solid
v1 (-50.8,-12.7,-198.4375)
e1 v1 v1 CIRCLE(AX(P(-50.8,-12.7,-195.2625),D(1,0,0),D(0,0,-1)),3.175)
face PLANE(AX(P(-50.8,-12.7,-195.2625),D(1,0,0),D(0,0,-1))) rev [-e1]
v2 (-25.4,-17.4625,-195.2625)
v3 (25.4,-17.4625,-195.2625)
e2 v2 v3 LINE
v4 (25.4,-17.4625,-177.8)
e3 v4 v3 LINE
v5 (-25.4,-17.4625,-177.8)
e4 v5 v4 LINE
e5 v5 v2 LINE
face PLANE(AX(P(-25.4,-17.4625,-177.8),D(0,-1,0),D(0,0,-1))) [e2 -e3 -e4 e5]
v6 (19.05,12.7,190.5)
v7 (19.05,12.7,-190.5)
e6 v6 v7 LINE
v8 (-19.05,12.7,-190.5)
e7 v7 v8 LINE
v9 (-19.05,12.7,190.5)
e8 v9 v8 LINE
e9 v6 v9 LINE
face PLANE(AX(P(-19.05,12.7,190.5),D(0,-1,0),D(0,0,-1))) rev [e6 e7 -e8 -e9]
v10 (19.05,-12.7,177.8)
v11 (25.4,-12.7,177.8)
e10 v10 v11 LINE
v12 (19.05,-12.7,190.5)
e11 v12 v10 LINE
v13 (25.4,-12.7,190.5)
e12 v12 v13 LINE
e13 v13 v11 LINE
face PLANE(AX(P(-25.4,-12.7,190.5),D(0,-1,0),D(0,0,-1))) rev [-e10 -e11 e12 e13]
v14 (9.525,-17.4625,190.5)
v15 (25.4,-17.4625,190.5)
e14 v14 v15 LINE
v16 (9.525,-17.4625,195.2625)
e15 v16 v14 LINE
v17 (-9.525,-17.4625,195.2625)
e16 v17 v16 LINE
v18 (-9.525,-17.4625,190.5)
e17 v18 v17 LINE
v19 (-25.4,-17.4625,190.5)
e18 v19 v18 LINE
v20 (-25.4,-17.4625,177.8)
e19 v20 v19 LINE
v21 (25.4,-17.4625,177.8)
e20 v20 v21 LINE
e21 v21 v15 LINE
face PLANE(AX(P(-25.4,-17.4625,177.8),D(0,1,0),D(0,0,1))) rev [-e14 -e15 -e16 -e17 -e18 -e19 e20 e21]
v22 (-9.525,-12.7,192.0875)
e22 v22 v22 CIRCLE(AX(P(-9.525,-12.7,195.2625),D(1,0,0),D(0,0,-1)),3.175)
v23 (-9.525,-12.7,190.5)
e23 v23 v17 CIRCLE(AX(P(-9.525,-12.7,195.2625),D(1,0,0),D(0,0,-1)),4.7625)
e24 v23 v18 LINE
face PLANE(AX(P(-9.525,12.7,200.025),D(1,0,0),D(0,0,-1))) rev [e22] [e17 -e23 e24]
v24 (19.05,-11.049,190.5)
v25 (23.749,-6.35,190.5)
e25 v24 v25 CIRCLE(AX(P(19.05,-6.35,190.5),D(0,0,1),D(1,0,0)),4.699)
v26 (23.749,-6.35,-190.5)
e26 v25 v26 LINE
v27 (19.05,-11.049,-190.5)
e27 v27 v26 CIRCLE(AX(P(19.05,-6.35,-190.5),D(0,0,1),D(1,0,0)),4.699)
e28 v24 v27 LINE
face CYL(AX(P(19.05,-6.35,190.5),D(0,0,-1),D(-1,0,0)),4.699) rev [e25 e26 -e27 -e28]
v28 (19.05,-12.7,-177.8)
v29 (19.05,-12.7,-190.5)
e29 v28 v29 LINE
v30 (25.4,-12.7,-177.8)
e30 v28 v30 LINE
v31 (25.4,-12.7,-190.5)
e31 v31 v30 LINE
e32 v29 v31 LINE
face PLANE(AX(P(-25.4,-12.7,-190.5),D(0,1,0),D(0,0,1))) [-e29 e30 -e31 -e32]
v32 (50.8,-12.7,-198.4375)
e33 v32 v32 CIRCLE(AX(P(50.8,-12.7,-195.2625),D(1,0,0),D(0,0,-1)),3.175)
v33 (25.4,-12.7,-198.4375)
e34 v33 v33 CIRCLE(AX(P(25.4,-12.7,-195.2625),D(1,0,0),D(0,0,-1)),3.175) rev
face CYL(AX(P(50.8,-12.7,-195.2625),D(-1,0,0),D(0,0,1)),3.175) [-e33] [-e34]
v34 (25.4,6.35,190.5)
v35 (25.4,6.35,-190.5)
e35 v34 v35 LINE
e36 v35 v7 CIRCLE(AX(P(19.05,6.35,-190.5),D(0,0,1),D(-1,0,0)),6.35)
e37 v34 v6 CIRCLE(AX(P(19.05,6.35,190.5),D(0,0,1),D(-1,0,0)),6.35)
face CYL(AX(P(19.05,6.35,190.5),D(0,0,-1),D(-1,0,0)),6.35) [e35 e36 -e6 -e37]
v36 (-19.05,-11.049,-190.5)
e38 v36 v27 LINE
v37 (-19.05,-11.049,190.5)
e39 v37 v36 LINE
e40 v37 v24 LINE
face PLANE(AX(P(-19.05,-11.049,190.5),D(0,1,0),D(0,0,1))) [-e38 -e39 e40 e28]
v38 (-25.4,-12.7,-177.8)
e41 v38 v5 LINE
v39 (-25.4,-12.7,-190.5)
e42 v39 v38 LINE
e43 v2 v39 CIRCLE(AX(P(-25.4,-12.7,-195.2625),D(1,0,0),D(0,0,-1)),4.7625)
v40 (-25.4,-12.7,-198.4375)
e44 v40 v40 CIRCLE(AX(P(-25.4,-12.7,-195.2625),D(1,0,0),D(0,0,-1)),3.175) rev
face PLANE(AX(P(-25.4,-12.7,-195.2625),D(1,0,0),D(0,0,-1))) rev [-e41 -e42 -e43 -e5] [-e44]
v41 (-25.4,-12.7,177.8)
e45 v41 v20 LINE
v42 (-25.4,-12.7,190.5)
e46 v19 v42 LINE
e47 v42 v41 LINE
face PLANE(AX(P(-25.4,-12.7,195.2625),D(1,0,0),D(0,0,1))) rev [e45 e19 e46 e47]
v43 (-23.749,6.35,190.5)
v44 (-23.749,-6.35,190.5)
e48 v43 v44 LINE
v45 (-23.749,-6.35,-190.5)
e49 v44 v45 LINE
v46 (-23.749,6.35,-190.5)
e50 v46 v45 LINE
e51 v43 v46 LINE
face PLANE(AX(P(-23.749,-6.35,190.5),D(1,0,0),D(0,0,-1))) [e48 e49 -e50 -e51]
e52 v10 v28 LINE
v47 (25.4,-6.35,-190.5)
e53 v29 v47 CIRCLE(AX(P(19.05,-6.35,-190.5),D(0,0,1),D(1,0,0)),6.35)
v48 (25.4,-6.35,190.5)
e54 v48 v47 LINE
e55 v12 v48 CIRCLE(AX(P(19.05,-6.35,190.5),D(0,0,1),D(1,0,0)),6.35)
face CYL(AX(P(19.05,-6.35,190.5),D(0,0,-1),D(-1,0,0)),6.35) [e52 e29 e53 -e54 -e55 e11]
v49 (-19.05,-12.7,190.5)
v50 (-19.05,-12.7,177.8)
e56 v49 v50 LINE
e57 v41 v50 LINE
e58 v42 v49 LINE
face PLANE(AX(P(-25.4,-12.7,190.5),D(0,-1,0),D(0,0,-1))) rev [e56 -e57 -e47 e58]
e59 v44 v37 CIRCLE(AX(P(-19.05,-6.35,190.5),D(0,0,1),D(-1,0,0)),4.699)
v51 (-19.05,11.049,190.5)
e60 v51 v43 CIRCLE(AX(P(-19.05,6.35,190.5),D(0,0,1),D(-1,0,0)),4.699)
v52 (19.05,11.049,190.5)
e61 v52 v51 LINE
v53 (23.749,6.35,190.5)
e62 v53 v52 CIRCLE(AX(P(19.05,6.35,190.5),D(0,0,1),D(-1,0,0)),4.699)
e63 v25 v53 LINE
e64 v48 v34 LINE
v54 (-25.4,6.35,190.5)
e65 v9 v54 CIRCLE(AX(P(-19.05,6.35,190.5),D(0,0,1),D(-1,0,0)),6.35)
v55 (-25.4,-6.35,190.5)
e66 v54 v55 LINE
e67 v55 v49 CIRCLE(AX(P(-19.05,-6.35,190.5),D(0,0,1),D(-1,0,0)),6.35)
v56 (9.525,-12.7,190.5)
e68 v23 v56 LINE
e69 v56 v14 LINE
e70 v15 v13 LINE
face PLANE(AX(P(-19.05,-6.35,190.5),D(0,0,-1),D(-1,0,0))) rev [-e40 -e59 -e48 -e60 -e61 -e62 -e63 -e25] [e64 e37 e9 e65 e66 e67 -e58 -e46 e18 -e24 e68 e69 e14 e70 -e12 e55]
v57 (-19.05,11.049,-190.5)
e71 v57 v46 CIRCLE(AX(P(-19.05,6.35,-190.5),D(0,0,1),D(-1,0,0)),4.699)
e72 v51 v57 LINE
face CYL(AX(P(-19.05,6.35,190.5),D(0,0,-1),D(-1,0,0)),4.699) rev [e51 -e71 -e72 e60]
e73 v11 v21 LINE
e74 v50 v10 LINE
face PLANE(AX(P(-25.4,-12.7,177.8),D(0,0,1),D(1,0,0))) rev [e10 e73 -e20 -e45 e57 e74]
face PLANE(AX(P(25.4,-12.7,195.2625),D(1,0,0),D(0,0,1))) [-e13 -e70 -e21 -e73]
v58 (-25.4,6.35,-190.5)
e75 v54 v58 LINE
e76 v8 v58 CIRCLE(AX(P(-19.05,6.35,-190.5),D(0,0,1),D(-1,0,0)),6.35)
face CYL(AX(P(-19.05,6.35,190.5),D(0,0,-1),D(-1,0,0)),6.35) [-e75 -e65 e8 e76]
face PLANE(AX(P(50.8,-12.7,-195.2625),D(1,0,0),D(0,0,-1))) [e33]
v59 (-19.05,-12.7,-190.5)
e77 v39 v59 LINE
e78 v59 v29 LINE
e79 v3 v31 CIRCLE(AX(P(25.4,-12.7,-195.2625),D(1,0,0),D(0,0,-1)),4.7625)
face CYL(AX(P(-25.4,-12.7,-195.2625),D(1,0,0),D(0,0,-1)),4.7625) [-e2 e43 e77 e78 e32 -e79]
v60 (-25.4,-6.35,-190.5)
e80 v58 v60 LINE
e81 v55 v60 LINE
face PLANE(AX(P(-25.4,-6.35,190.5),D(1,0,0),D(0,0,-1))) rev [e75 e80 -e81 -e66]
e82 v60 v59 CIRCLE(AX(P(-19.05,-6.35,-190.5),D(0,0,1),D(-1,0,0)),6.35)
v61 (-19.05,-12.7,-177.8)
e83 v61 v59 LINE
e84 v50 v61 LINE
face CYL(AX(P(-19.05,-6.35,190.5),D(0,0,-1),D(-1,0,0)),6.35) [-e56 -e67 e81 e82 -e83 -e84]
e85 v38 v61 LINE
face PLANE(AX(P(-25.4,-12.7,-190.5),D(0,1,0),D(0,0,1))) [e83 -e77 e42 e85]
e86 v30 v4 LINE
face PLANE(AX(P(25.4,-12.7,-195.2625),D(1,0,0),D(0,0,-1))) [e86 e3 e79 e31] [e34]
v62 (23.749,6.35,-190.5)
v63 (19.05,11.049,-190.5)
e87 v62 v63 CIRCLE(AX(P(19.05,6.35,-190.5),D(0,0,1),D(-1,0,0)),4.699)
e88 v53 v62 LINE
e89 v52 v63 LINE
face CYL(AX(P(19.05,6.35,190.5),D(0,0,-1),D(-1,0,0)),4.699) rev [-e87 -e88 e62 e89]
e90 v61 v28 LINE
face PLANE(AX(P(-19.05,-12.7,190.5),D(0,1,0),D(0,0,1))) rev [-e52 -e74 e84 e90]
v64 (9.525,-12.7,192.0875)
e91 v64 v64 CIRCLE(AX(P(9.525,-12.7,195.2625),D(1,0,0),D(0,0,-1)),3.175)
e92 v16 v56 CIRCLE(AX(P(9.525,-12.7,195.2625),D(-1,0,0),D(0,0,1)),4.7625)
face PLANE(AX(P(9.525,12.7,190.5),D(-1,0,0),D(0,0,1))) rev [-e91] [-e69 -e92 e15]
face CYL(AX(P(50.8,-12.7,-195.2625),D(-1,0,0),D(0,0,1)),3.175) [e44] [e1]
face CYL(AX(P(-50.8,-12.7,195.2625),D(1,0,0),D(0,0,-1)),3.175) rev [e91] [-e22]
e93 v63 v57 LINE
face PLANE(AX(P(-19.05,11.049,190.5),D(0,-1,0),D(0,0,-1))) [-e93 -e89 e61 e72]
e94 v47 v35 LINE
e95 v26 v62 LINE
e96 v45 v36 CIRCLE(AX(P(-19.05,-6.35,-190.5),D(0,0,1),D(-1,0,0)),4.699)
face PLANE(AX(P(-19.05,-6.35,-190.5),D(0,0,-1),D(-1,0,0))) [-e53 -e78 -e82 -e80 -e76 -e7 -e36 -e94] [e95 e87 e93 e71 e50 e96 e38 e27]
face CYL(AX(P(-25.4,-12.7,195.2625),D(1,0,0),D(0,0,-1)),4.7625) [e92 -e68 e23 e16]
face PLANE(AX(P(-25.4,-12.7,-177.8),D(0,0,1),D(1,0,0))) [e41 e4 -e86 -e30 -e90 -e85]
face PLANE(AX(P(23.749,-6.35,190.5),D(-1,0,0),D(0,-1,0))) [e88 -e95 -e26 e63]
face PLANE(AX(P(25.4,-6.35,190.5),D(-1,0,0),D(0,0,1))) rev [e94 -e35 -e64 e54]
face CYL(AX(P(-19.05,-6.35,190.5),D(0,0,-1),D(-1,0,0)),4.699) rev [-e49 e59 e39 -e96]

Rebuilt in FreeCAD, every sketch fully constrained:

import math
import FreeCAD as App
import Part
import Sketcher
from FreeCAD import Vector
Q = App.Units.Quantity


def add_polygon(sketch, points):
    """Adds a closed chain of lines whose ends are joined by coincident constraints."""
    first, n = sketch.GeometryCount, len(points)
    for a, b in zip(points, points[1:] + points[:1]):
        sketch.addGeometry(Part.LineSegment(App.Vector(*a, 0), App.Vector(*b, 0)), False)
    for i in range(n):
        sketch.addConstraint(Sketcher.Constraint("Coincident", first + i, 2, first + (i + 1) % n, 1))

doc = App.newDocument("Part")
body = doc.addObject("PartDesign::Body", "Body")

# Sketch on XY plane
sketch1 = body.newObject("Sketcher::SketchObject", "Sketch")
sketch1.AttachmentSupport = (doc.getObject("XY_Plane"), [""])
sketch1.MapMode = "FlatFace"
sketch1.addGeometry(Part.LineSegment(Vector(-19.1, -12.7, 0), Vector(19.1, -12.7, 0)), False)
sketch1.addGeometry(Part.ArcOfCircle(Part.Circle(Vector(19.1, -6.4, 0), Vector(0, 0, 1), 6.3), math.radians(-90), math.radians(0)), False)
sketch1.addGeometry(Part.LineSegment(Vector(25.4, -6.3, 0), Vector(25.4, 6.3, 0)), False)
sketch1.addGeometry(Part.ArcOfCircle(Part.Circle(Vector(19.1, 6.4, 0), Vector(0, 0, 1), 6.3), math.radians(0), math.radians(90)), False)
sketch1.addGeometry(Part.LineSegment(Vector(19.1, 12.7, 0), Vector(-19.1, 12.7, 0)), False)
sketch1.addGeometry(Part.ArcOfCircle(Part.Circle(Vector(-19.1, 6.4, 0), Vector(0, 0, 1), 6.3), math.radians(90), math.radians(180)), False)
sketch1.addGeometry(Part.LineSegment(Vector(-25.4, 6.3, 0), Vector(-25.4, -6.3, 0)), False)
sketch1.addGeometry(Part.ArcOfCircle(Part.Circle(Vector(-19.1, -6.4, 0), Vector(0, 0, 1), 6.3), math.radians(180), math.radians(270)), False)
sketch1.addGeometry(Part.ArcOfCircle(Part.Circle(Vector(-19.1, 6.4, 0), Vector(0, 0, 1), 4.7), math.radians(90), math.radians(180)), False)
sketch1.addGeometry(Part.LineSegment(Vector(-19.1, 11, 0), Vector(19.1, 11, 0)), False)
sketch1.addGeometry(Part.ArcOfCircle(Part.Circle(Vector(19.1, 6.4, 0), Vector(0, 0, 1), 4.7), math.radians(0), math.radians(90)), False)
sketch1.addGeometry(Part.LineSegment(Vector(23.7, 6.3, 0), Vector(23.7, -6.3, 0)), False)
sketch1.addGeometry(Part.ArcOfCircle(Part.Circle(Vector(19.1, -6.4, 0), Vector(0, 0, 1), 4.7), math.radians(-90), math.radians(0)), False)
sketch1.addGeometry(Part.LineSegment(Vector(19.1, -11, 0), Vector(-19.1, -11, 0)), False)
sketch1.addGeometry(Part.ArcOfCircle(Part.Circle(Vector(-19.1, -6.4, 0), Vector(0, 0, 1), 4.7), math.radians(180), math.radians(270)), False)
sketch1.addGeometry(Part.LineSegment(Vector(-23.7, -6.3, 0), Vector(-23.7, 6.3, 0)), False)
sketch1.addConstraint(Sketcher.Constraint("Tangent", 0, 2, 1, 1))
sketch1.addConstraint(Sketcher.Constraint("Tangent", 1, 2, 2, 1))
sketch1.addConstraint(Sketcher.Constraint("Tangent", 2, 2, 3, 1))
sketch1.addConstraint(Sketcher.Constraint("Tangent", 3, 2, 4, 1))
sketch1.addConstraint(Sketcher.Constraint("Tangent", 4, 2, 5, 1))
sketch1.addConstraint(Sketcher.Constraint("Tangent", 5, 2, 6, 1))
sketch1.addConstraint(Sketcher.Constraint("Tangent", 6, 2, 7, 1))
sketch1.addConstraint(Sketcher.Constraint("Tangent", 7, 2, 0, 1))
sketch1.addConstraint(Sketcher.Constraint("Tangent", 8, 1, 9, 1))
sketch1.addConstraint(Sketcher.Constraint("Tangent", 9, 2, 10, 2))
sketch1.addConstraint(Sketcher.Constraint("Tangent", 10, 1, 11, 1))
sketch1.addConstraint(Sketcher.Constraint("Tangent", 11, 2, 12, 2))
sketch1.addConstraint(Sketcher.Constraint("Tangent", 12, 1, 13, 1))
sketch1.addConstraint(Sketcher.Constraint("Tangent", 13, 2, 14, 2))
sketch1.addConstraint(Sketcher.Constraint("Tangent", 14, 1, 15, 1))
sketch1.addConstraint(Sketcher.Constraint("Tangent", 15, 2, 8, 2))
sketch1.addConstraint(Sketcher.Constraint("Horizontal", 0))
sketch1.addConstraint(Sketcher.Constraint("Vertical", 2))
sketch1.addConstraint(Sketcher.Constraint("Horizontal", 4))
sketch1.addConstraint(Sketcher.Constraint("Vertical", 6))
sketch1.addConstraint(Sketcher.Constraint("Horizontal", 9))
sketch1.addConstraint(Sketcher.Constraint("Vertical", 11))
sketch1.addConstraint(Sketcher.Constraint("Horizontal", 13))
sketch1.addConstraint(Sketcher.Constraint("Vertical", 15))
sketch1.addConstraint(Sketcher.Constraint("Coincident", 8, 3, 5, 3))
sketch1.addConstraint(Sketcher.Constraint("Coincident", 10, 3, 3, 3))
sketch1.addConstraint(Sketcher.Constraint("Coincident", 12, 3, 1, 3))
sketch1.addConstraint(Sketcher.Constraint("Equal", 1, 3))
sketch1.addConstraint(Sketcher.Constraint("Equal", 3, 5))
sketch1.addConstraint(Sketcher.Constraint("Equal", 5, 7))
sketch1.addConstraint(Sketcher.Constraint("Equal", 12, 14))
sketch1.addConstraint(Sketcher.Constraint("Symmetric", 1, 3, 5, 3, -1, 1))
sketch1.addConstraint(Sketcher.Constraint("Radius", 1, Q("0.25 in")))
sketch1.addConstraint(Sketcher.Constraint("DistanceX", 0, 1, 0, 2, Q("1.5 in")))
sketch1.addConstraint(Sketcher.Constraint("DistanceY", 2, 1, 2, 2, Q("0.5 in")))
sketch1.addConstraint(Sketcher.Constraint("Radius", 8, Q("0.185 in")))
pad1 = body.newObject("PartDesign::Pad", "Pad")
pad1.Profile = sketch1
pad1.Length = Q("15 in")
pad1.Midplane = True

# Sketch on YZ plane
sketch2 = body.newObject("Sketcher::SketchObject", "Sketch001")
sketch2.AttachmentSupport = (doc.getObject("YZ_Plane"), [""])
sketch2.MapMode = "FlatFace"
sketch2.AttachmentOffset = App.Placement(Vector(0, 0, 1 * 25.4), App.Rotation())
sketch2.addGeometry(Part.LineSegment(Vector(-12.7, -177.8, 0), Vector(-17.5, -177.8, 0)), False)
sketch2.addGeometry(Part.LineSegment(Vector(-17.5, -177.8, 0), Vector(-17.5, -195.3, 0)), False)
sketch2.addGeometry(Part.ArcOfCircle(Part.Circle(Vector(-12.7, -195.3, 0), Vector(0, 0, 1), 4.8), math.radians(180), math.radians(450)), False)
sketch2.addGeometry(Part.LineSegment(Vector(-12.7, -190.5, 0), Vector(-12.7, -177.8, 0)), False)
sketch2.addConstraint(Sketcher.Constraint("Coincident", 0, 2, 1, 1))
sketch2.addConstraint(Sketcher.Constraint("Tangent", 1, 2, 2, 1))
sketch2.addConstraint(Sketcher.Constraint("Coincident", 2, 2, 3, 1))
sketch2.addConstraint(Sketcher.Constraint("Coincident", 3, 2, 0, 1))
sketch2.addConstraint(Sketcher.Constraint("Horizontal", 0))
sketch2.addConstraint(Sketcher.Constraint("Vertical", 1))
sketch2.addConstraint(Sketcher.Constraint("Vertical", 3))
sketch2.addConstraint(Sketcher.Constraint("DistanceY", 3, 1, 3, 2, Q("0.5 in")))
sketch2.addConstraint(Sketcher.Constraint("DistanceY", 0, 2, -1, 1, Q("7 in")))
sketch2.addConstraint(Sketcher.Constraint("Radius", 2, Q("0.1875 in")))
sketch2.addConstraint(Sketcher.Constraint("DistanceX", 2, 3, -1, 1, Q("0.5 in")))
sketch2.addConstraint(Sketcher.Constraint("DistanceX", 2, 2, -1, 1, Q("0.5 in")))
pad2 = body.newObject("PartDesign::Pad", "Pad001")
pad2.Profile = sketch2
pad2.Length = Q("2 in")
pad2.Reversed = True
doc.recompute()

mirrored = body.newObject("PartDesign::Mirrored", "Mirrored")
mirrored.Originals = [pad2]
mirrored.MirrorPlane = (doc.getObject("XY_Plane"), [""])
body.Tip = mirrored

# Sketch on YZ plane
sketch3 = body.newObject("Sketcher::SketchObject", "Sketch002")
sketch3.AttachmentSupport = (doc.getObject("YZ_Plane"), [""])
sketch3.MapMode = "FlatFace"
sketch3.addGeometry(Part.Circle(Vector(-12.7, -195.3, 0), Vector(0, 0, 1), 3.2), False)
sketch3.addConstraint(Sketcher.Constraint("Diameter", 0, Q("0.25 in")))
sketch3.addConstraint(Sketcher.Constraint("DistanceX", 0, 3, -1, 1, Q("0.5 in")))
sketch3.addConstraint(Sketcher.Constraint("DistanceY", 0, 3, -1, 1, Q("7.6875 in")))
pad3 = body.newObject("PartDesign::Pad", "Pad002")
pad3.Profile = sketch3
pad3.Length = Q("4 in")
pad3.Midplane = True

# Sketch on XZ plane
sketch4 = body.newObject("Sketcher::SketchObject", "Sketch003")
sketch4.AttachmentSupport = (doc.getObject("XZ_Plane"), [""])
sketch4.MapMode = "FlatFace"
sketch4.AttachmentOffset = App.Placement(Vector(0, 0, 0.6875 * 25.4), App.Rotation())
add_polygon(sketch4, [(-25, 200), (-25, 190), (-10, 190), (-10, 200)])  # lines 0-3
add_polygon(sketch4, [(10, 200), (10, 190), (25, 190), (25, 200)])  # lines 4-7
sketch4.addConstraint(Sketcher.Constraint("Vertical", 0))
sketch4.addConstraint(Sketcher.Constraint("Horizontal", 1))
sketch4.addConstraint(Sketcher.Constraint("Vertical", 2))
sketch4.addConstraint(Sketcher.Constraint("Horizontal", 3))
sketch4.addConstraint(Sketcher.Constraint("Vertical", 4))
sketch4.addConstraint(Sketcher.Constraint("Horizontal", 5))
sketch4.addConstraint(Sketcher.Constraint("Vertical", 6))
sketch4.addConstraint(Sketcher.Constraint("Horizontal", 7))
sketch4.addConstraint(Sketcher.Constraint("Symmetric", 1, 2, 4, 2, -2))
sketch4.addConstraint(Sketcher.Constraint("Symmetric", 3, 2, 6, 2, -2))
sketch4.addConstraint(Sketcher.Constraint("DistanceX", 0, 2, -1, 1, Q("1 in")))
sketch4.addConstraint(Sketcher.Constraint("DistanceY", -1, 1, 0, 2, Q("7.5 in")))
sketch4.addConstraint(Sketcher.Constraint("DistanceX", 1, 1, 1, 2, Q("0.625 in")))
sketch4.addConstraint(Sketcher.Constraint("DistanceY", 0, 2, 0, 1, Q("0.375 in")))
pocket1 = body.newObject("PartDesign::Pocket", "Pocket")
pocket1.Profile = sketch4
pocket1.Type = "ThroughAll"

# Sketch on YZ plane
sketch5 = body.newObject("Sketcher::SketchObject", "Sketch004")
sketch5.AttachmentSupport = (doc.getObject("YZ_Plane"), [""])
sketch5.MapMode = "FlatFace"
sketch5.AttachmentOffset = App.Placement(Vector(0, 0, 0.375 * 25.4), App.Rotation())
sketch5.addGeometry(Part.Circle(Vector(-12.7, 195.3, 0), Vector(0, 0, 1), 3.2), False)
sketch5.addConstraint(Sketcher.Constraint("Diameter", 0, Q("0.25 in")))
sketch5.addConstraint(Sketcher.Constraint("DistanceX", 0, 3, -1, 1, Q("0.5 in")))
sketch5.addConstraint(Sketcher.Constraint("DistanceY", -1, 1, 0, 3, Q("7.6875 in")))
pocket2 = body.newObject("PartDesign::Pocket", "Pocket001")
pocket2.Profile = sketch5
pocket2.Type = "ThroughAll"

doc.recompute()
